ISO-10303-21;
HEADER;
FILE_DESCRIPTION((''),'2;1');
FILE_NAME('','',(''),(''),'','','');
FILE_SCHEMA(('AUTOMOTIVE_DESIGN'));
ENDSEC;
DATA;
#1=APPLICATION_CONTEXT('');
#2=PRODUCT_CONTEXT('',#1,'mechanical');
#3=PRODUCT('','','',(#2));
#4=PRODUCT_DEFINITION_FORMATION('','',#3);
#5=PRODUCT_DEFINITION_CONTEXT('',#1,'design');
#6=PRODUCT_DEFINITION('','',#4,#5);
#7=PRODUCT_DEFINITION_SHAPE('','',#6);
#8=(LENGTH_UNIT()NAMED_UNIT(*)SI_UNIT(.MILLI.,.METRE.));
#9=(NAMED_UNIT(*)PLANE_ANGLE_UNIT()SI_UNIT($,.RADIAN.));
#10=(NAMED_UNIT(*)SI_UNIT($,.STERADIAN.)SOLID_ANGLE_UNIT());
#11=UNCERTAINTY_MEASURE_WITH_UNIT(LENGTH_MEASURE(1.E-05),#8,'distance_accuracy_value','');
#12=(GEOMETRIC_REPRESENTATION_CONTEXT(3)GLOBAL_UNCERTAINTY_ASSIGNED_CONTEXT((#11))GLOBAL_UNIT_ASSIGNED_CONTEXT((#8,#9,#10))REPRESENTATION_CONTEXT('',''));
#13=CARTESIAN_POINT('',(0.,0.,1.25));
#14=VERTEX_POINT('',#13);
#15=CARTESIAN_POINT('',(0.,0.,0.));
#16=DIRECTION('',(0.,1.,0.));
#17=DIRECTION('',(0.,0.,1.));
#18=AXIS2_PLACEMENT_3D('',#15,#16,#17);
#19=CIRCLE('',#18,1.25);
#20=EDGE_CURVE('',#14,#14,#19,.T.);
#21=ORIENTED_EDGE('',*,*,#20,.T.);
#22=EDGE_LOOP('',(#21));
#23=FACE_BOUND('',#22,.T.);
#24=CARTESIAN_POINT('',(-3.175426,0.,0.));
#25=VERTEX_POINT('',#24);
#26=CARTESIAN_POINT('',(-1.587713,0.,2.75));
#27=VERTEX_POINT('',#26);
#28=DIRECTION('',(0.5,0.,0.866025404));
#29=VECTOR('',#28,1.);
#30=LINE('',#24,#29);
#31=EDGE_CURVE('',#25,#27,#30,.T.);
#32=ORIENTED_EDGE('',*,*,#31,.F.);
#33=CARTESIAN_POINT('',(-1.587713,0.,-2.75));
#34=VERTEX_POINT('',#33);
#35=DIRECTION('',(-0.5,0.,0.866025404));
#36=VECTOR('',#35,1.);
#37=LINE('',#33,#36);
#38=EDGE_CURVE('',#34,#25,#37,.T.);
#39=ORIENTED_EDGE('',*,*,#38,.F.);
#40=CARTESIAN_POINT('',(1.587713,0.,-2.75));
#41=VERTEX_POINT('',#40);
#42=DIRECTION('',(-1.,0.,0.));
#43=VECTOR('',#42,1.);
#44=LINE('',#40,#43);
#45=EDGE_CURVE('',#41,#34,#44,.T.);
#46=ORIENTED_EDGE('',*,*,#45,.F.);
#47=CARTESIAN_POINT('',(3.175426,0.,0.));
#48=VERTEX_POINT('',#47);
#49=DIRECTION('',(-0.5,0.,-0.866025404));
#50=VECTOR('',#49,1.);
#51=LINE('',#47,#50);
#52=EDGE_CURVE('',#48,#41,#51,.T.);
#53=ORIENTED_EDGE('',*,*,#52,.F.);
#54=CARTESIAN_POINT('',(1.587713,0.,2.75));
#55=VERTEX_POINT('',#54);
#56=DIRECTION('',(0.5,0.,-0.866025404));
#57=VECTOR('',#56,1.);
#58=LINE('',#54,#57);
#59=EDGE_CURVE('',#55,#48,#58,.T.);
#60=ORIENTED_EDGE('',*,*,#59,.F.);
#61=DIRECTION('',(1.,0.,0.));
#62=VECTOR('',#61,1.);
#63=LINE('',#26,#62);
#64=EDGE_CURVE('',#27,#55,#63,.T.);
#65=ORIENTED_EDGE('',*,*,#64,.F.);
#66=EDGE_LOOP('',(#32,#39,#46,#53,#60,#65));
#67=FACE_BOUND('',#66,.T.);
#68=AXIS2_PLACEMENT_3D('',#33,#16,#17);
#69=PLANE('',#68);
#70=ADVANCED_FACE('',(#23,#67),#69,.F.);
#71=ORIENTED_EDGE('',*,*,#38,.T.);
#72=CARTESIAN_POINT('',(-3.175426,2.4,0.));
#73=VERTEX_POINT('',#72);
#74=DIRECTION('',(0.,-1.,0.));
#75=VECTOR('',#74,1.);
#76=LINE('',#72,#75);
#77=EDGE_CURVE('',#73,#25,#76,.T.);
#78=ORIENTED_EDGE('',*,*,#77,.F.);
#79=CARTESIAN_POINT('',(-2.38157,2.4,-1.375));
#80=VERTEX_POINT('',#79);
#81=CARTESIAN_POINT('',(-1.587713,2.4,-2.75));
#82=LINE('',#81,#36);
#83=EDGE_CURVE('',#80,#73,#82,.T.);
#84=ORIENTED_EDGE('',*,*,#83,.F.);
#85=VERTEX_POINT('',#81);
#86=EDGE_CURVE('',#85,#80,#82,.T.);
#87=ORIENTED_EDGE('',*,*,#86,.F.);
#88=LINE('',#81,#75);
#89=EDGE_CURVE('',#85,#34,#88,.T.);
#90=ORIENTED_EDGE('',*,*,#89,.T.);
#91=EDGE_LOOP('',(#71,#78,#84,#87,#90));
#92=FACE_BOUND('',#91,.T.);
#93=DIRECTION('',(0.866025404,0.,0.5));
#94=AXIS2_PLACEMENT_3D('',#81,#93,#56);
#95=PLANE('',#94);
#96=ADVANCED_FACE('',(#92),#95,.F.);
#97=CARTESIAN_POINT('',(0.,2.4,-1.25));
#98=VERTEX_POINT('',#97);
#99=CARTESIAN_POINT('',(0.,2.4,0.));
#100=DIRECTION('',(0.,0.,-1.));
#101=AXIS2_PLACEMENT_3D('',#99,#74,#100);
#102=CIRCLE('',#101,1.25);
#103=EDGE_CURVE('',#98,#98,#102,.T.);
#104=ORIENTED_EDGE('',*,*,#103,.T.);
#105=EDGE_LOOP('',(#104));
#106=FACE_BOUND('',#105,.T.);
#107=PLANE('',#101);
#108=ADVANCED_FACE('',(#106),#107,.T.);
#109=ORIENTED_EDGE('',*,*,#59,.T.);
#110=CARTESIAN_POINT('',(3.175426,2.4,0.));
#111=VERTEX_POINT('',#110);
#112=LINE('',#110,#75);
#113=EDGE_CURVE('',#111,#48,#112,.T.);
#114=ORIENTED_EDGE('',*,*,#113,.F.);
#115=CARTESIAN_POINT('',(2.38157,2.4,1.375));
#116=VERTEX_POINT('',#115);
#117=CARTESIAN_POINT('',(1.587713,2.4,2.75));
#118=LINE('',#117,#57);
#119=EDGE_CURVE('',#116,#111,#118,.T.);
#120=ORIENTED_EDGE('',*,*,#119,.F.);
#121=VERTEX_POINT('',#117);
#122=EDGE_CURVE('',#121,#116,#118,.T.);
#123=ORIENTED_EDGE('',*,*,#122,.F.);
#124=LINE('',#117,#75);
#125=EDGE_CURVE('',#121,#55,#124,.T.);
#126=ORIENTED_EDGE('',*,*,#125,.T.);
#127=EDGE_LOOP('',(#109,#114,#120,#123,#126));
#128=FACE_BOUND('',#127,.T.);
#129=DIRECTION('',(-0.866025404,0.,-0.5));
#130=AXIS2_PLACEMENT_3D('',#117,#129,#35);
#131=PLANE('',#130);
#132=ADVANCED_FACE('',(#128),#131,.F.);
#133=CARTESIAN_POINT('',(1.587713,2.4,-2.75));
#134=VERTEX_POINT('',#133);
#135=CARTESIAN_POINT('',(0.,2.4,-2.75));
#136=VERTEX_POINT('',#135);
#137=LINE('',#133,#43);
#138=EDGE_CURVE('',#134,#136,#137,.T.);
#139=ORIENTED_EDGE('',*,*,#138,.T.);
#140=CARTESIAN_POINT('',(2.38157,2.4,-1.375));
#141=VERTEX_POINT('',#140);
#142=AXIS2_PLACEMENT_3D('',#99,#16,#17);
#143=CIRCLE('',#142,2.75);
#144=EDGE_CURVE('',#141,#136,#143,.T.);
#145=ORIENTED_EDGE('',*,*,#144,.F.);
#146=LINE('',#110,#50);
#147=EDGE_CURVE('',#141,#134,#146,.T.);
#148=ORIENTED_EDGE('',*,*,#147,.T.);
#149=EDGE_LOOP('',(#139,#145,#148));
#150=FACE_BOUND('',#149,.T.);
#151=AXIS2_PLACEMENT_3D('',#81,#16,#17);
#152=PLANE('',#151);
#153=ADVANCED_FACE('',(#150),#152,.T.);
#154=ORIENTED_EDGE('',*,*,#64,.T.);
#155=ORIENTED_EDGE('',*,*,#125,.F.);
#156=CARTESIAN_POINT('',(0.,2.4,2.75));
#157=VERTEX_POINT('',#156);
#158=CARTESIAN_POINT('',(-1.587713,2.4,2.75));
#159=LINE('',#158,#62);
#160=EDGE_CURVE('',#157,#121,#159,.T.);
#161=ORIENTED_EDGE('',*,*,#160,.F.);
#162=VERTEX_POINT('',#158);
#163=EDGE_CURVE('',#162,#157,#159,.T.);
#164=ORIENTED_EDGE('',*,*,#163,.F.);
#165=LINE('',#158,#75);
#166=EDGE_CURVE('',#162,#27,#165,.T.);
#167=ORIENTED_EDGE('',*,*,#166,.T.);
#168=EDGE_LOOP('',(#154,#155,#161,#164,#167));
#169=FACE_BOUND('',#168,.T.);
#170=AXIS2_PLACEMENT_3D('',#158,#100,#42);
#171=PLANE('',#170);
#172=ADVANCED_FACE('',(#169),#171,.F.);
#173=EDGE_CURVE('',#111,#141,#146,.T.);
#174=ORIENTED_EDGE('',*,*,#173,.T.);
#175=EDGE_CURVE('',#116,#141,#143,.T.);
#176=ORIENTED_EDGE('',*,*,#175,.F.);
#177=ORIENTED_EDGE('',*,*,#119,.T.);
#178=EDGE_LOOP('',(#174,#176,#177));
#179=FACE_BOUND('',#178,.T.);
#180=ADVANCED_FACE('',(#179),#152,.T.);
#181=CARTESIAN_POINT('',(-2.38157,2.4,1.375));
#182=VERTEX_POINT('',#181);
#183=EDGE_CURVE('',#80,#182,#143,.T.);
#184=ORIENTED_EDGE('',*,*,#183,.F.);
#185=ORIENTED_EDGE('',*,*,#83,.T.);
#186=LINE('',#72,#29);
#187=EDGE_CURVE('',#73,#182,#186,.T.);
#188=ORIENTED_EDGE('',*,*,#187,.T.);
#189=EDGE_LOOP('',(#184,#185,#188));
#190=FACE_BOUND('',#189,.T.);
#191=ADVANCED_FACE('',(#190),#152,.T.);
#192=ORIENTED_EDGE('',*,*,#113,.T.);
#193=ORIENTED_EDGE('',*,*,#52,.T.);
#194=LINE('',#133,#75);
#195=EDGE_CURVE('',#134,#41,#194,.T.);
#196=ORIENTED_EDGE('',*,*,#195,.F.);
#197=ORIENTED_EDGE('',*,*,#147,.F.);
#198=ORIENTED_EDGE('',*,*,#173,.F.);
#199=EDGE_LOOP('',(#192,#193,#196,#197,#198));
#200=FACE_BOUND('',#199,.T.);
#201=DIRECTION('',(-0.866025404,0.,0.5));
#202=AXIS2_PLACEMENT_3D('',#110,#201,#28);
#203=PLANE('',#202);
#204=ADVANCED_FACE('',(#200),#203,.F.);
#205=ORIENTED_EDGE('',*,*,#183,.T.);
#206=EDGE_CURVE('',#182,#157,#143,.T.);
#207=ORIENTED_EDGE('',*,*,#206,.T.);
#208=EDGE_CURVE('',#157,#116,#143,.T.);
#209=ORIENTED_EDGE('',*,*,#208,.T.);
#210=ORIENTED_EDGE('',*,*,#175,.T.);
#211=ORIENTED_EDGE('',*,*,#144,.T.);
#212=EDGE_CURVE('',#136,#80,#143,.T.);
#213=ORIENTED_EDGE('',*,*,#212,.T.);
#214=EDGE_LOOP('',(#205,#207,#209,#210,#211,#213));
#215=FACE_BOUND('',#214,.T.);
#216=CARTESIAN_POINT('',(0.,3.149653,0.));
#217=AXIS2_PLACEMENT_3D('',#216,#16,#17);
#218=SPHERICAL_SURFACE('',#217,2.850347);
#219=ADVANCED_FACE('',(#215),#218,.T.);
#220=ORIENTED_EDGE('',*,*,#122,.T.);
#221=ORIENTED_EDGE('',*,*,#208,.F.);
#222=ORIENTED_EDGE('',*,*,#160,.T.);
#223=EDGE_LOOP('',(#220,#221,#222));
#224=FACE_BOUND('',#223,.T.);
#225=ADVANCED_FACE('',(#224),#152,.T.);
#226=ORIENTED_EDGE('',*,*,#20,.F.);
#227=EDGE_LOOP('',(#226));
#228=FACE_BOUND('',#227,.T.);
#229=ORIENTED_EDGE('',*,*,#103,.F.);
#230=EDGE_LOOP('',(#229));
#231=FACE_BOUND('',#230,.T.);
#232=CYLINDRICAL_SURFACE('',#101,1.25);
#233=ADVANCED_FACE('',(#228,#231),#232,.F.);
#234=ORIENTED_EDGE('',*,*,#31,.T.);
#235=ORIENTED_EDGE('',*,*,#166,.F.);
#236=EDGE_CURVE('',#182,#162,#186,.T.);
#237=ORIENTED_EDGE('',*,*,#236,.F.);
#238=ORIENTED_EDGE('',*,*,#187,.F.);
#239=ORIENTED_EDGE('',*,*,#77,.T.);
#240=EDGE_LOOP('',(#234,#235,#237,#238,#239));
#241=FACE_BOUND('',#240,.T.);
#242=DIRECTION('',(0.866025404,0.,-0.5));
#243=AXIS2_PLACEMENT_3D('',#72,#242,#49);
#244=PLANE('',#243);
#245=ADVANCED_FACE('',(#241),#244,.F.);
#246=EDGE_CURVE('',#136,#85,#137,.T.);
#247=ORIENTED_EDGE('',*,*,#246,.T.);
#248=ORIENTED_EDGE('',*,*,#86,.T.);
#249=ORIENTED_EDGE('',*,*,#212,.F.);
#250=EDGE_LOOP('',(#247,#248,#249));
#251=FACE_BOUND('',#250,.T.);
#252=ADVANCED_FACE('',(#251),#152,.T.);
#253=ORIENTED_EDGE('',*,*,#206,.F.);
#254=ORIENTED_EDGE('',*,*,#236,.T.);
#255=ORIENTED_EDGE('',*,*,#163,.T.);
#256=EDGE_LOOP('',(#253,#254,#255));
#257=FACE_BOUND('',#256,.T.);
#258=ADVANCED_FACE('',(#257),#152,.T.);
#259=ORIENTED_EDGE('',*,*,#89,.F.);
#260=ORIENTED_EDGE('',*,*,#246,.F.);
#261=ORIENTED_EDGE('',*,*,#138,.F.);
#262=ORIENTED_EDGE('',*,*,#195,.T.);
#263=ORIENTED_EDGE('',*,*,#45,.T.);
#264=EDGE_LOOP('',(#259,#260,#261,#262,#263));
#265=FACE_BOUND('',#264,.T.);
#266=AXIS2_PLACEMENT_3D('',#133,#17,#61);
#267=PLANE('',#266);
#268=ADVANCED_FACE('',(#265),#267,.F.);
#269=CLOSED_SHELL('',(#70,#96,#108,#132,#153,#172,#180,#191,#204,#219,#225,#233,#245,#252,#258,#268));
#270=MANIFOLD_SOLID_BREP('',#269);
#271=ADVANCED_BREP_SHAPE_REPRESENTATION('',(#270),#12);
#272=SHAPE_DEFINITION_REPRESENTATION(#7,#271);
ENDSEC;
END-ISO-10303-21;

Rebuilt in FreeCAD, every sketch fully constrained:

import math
import FreeCAD as App
import Part
import Sketcher

V = App.Vector
Q = App.Units.Quantity


def add_polygon(sketch, points):
    """Adds a closed chain of lines whose ends are joined by coincident constraints."""
    first, n = sketch.GeometryCount, len(points)
    for a, b in zip(points, points[1:] + points[:1]):
        sketch.addGeometry(Part.LineSegment(App.Vector(*a, 0), App.Vector(*b, 0)), False)
    for i in range(n):
        sketch.addConstraint(Sketcher.Constraint("Coincident", first + i, 2, first + (i + 1) % n, 1))

doc = App.newDocument("Part")
body = doc.addObject("PartDesign::Body", "Body")

# Sketch on XZ plane
sketch1 = body.newObject("Sketcher::SketchObject", "Sketch")
sketch1.AttachmentSupport = (doc.getObject("XZ_Plane"), [""])
sketch1.MapMode = "FlatFace"
add_polygon(sketch1, [(-1.6, -2.8), (-3.2, 0), (-1.6, 2.8), (1.6, 2.8), (3.2, 0), (1.6, -2.8)])  # lines 0-5
sketch1.addGeometry(Part.Circle(V(0, 0, 0), V(0, 0, 1), 1.2), False)  # 6
sketch1.addConstraint([
    Sketcher.Constraint("Horizontal", 2),
    Sketcher.Constraint("Horizontal", 5),
    Sketcher.Constraint("Coincident", 6, 3, -1, 1),
    Sketcher.Constraint("Symmetric", 0, 2, 3, 2, -1, 1),
    Sketcher.Constraint("Symmetric", 1, 2, 4, 2, -1, 1),
    Sketcher.Constraint("PointOnObject", 0, 2, -1),
    Sketcher.Constraint("Parallel", 0, 3),
    Sketcher.Constraint("Vertical", 2, 2, 4, 2),
    Sketcher.Constraint("Diameter", 6, Q("2.5 mm")),
    Sketcher.Constraint("Angle", 0, Q("120 deg")),
    Sketcher.Constraint("DistanceY", 4, 2, 2, 2, Q("5.5 mm")),
    Sketcher.Constraint("DistanceX", 2, 1, 2, 2, Q("3.175426 mm")),
])
pad1 = body.newObject("PartDesign::Pad", "Pad")
pad1.Profile = sketch1
pad1.Length = 2.4
pad1.Reversed = True

# Sketch on YZ plane
sketch2 = body.newObject("Sketcher::SketchObject", "Sketch001")
sketch2.AttachmentSupport = (doc.getObject("YZ_Plane"), [""])
sketch2.MapMode = "FlatFace"
sketch2.addGeometry([
    Part.LineSegment(V(6, 0, 0), V(2.4, 0, 0)),
    Part.LineSegment(V(2.4, 0, 0), V(2.4, -2.8, 0)),
    Part.ArcOfCircle(Part.Circle(V(3.1, 0, 0), V(0, 0, 1), 2.9), math.radians(-105), math.radians(0)),
], False)
sketch2.addConstraint([
    Sketcher.Constraint("Coincident", 0, 2, 1, 1),
    Sketcher.Constraint("Coincident", 1, 2, 2, 1),
    Sketcher.Constraint("Coincident", 2, 2, 0, 1),
    Sketcher.Constraint("Horizontal", 0),
    Sketcher.Constraint("Vertical", 1),
    Sketcher.Constraint("PointOnObject", 2, 3, -1),
    Sketcher.Constraint("PointOnObject", 0, 2, -1),
    Sketcher.Constraint("DistanceX", 0, 2, 0, 1, Q("3.6 mm")),
    Sketcher.Constraint("DistanceX", -1, 1, 2, 2, Q("6 mm")),
    Sketcher.Constraint("DistanceY", 1, 2, 1, 1, Q("2.75 mm")),
])
revolution = body.newObject("PartDesign::Revolution", "Revolution")
revolution.Profile = sketch2
revolution.ReferenceAxis = (sketch2, ["H_Axis"])
revolution.Angle = 360

doc.recompute()
